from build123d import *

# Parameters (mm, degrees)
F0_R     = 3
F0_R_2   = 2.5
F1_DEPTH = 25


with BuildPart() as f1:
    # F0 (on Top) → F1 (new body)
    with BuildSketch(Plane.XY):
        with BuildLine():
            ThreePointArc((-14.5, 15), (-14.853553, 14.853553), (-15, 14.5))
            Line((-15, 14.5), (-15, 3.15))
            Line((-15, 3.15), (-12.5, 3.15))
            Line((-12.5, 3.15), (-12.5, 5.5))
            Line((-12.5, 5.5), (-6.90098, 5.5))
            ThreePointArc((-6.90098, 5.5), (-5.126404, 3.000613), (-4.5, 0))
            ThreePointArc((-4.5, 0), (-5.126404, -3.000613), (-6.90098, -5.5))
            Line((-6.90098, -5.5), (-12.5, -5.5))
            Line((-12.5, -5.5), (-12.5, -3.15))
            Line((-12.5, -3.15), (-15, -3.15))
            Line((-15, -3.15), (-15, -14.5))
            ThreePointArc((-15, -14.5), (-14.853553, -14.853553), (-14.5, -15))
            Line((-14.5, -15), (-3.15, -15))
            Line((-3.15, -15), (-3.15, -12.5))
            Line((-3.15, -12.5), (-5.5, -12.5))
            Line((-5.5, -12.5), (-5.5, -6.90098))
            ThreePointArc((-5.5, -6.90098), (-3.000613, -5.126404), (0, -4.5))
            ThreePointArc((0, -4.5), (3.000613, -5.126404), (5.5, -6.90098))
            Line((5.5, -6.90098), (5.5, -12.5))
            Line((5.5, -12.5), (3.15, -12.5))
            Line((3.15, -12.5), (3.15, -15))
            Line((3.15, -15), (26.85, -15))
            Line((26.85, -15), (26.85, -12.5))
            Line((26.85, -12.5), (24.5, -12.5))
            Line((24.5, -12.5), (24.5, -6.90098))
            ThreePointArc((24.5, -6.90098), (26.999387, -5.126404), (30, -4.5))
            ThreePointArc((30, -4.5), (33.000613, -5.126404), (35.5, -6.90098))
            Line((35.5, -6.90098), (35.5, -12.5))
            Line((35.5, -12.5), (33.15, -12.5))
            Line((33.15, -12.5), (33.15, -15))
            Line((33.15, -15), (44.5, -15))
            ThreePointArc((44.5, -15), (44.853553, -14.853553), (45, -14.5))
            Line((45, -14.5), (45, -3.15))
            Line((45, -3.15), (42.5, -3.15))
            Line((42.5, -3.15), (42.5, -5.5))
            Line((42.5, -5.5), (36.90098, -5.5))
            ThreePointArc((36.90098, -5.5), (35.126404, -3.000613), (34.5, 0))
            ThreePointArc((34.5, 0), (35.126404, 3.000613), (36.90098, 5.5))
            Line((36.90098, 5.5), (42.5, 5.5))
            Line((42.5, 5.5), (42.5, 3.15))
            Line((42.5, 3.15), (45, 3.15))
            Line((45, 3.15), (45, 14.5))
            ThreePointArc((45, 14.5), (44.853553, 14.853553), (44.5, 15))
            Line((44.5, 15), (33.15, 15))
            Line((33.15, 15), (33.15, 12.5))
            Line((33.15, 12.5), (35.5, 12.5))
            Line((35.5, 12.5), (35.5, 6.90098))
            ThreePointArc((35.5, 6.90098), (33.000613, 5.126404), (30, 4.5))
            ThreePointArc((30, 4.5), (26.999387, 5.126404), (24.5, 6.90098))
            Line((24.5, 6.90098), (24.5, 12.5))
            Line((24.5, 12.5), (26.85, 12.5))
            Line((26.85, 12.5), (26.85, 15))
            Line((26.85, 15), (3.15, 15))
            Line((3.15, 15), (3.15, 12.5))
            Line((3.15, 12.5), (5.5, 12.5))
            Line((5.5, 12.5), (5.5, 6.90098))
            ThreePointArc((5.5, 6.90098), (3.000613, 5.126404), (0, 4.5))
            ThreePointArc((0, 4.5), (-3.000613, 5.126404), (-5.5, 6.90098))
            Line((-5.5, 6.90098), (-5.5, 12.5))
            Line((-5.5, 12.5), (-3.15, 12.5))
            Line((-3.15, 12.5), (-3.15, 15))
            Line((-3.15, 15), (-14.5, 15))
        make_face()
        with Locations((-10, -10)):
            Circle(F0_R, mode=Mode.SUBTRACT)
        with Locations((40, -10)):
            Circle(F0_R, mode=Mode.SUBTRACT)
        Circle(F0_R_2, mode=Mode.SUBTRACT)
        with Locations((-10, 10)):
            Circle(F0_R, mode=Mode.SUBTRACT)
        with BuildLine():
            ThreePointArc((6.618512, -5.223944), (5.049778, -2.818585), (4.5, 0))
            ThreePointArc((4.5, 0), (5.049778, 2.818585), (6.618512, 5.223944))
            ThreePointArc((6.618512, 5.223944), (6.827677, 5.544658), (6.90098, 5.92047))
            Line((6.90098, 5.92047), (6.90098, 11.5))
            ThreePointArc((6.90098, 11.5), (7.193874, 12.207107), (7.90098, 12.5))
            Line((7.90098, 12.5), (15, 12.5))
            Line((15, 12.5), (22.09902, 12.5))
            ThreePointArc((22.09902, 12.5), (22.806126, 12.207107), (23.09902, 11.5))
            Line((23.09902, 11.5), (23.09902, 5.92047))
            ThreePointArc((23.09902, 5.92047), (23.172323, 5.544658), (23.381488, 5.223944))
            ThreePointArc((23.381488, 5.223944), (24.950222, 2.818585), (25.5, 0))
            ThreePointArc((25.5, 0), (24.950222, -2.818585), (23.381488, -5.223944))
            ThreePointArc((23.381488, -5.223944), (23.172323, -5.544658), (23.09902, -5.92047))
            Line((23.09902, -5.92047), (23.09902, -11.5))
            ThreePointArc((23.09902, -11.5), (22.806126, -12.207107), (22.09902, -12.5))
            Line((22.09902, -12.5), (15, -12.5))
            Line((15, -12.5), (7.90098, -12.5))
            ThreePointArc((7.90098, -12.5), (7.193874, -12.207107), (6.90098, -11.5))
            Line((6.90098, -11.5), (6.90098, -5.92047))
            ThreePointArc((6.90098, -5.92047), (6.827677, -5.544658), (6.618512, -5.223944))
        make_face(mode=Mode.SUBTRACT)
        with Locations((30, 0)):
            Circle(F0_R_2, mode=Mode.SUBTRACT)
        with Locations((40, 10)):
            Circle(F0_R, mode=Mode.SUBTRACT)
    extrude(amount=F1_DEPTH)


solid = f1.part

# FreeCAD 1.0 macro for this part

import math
import FreeCAD as App
import Part
import Sketcher

doc = App.newDocument("Part")
params = doc.addObject("Spreadsheet::Sheet", "Params")
for row, (alias, value) in enumerate([
    ("sketch1_diameter", "6 mm"),
    ("sketch1_diameter2", "5 mm"),
    ("sketch1_radius", "1.000001 mm"),
    ("sketch1_radius2", "0.500001 mm"),
    ("sketch1_radius3", "7.500002 mm"),
    ("pad1_length", "25 mm"),
], start=1):
    params.set(f"A{row}", alias)
    params.set(f"B{row}", "=" + value)
    params.setAlias(f"B{row}", alias)

body = doc.addObject("PartDesign::Body", "Body")

sketch1 = body.newObject("Sketcher::SketchObject", "Sketch")
sketch1.AttachmentSupport = (doc.getObject("XY_Plane"), [""])
sketch1.MapMode = "FlatFace"
sketch1.addGeometry([
    Part.ArcOfCircle(Part.Circle(App.Vector(-14.5, 14.5, 0), App.Vector(0, 0, 1), 0.5), math.radians(90), math.radians(180)),
    Part.LineSegment(App.Vector(-15, 14.5, 0), App.Vector(-15, 3.1, 0)),
    Part.LineSegment(App.Vector(-15, 3.1, 0), App.Vector(-12.5, 3.1, 0)),
    Part.LineSegment(App.Vector(-12.5, 3.1, 0), App.Vector(-12.5, 5.5, 0)),
    Part.LineSegment(App.Vector(-12.5, 5.5, 0), App.Vector(-6.9, 5.5, 0)),
    Part.ArcOfCircle(Part.Circle(App.Vector(-12, 0, 0), App.Vector(0, 0, 1), 7.5), math.radians(0), math.radians(47)),
    Part.ArcOfCircle(Part.Circle(App.Vector(-12, 0, 0), App.Vector(0, 0, 1), 7.5), math.radians(-47), math.radians(0)),
    Part.LineSegment(App.Vector(-6.9, -5.5, 0), App.Vector(-12.5, -5.5, 0)),
    Part.LineSegment(App.Vector(-12.5, -5.5, 0), App.Vector(-12.5, -3.1, 0)),
    Part.LineSegment(App.Vector(-12.5, -3.1, 0), App.Vector(-15, -3.1, 0)),
    Part.LineSegment(App.Vector(-15, -3.1, 0), App.Vector(-15, -14.5, 0)),
    Part.ArcOfCircle(Part.Circle(App.Vector(-14.5, -14.5, 0), App.Vector(0, 0, 1), 0.5), math.radians(-180), math.radians(-90)),
    Part.LineSegment(App.Vector(-14.5, -15, 0), App.Vector(-3.1, -15, 0)),
    Part.LineSegment(App.Vector(-3.1, -15, 0), App.Vector(-3.1, -12.5, 0)),
    Part.LineSegment(App.Vector(-3.1, -12.5, 0), App.Vector(-5.5, -12.5, 0)),
    Part.LineSegment(App.Vector(-5.5, -12.5, 0), App.Vector(-5.5, -6.9, 0)),
    Part.ArcOfCircle(Part.Circle(App.Vector(0, -12, 0), App.Vector(0, 0, 1), 7.5), math.radians(90), math.radians(137)),
    Part.ArcOfCircle(Part.Circle(App.Vector(0, -12, 0), App.Vector(0, 0, 1), 7.5), math.radians(43), math.radians(90)),
    Part.LineSegment(App.Vector(5.5, -6.9, 0), App.Vector(5.5, -12.5, 0)),
    Part.LineSegment(App.Vector(5.5, -12.5, 0), App.Vector(3.1, -12.5, 0)),
    Part.LineSegment(App.Vector(3.1, -12.5, 0), App.Vector(3.1, -15, 0)),
    Part.LineSegment(App.Vector(3.1, -15, 0), App.Vector(26.9, -15, 0)),
    Part.LineSegment(App.Vector(26.9, -15, 0), App.Vector(26.9, -12.5, 0)),
    Part.LineSegment(App.Vector(26.9, -12.5, 0), App.Vector(24.5, -12.5, 0)),
    Part.LineSegment(App.Vector(24.5, -12.5, 0), App.Vector(24.5, -6.9, 0)),
    Part.ArcOfCircle(Part.Circle(App.Vector(30, -12, 0), App.Vector(0, 0, 1), 7.5), math.radians(90), math.radians(137)),
    Part.ArcOfCircle(Part.Circle(App.Vector(30, -12, 0), App.Vector(0, 0, 1), 7.5), math.radians(43), math.radians(90)),
    Part.LineSegment(App.Vector(35.5, -6.9, 0), App.Vector(35.5, -12.5, 0)),
    Part.LineSegment(App.Vector(35.5, -12.5, 0), App.Vector(33.1, -12.5, 0)),
    Part.LineSegment(App.Vector(33.1, -12.5, 0), App.Vector(33.1, -15, 0)),
    Part.LineSegment(App.Vector(33.1, -15, 0), App.Vector(44.5, -15, 0)),
    Part.ArcOfCircle(Part.Circle(App.Vector(44.5, -14.5, 0), App.Vector(0, 0, 1), 0.5), math.radians(-90), math.radians(0)),
    Part.LineSegment(App.Vector(45, -14.5, 0), App.Vector(45, -3.1, 0)),
    Part.LineSegment(App.Vector(45, -3.1, 0), App.Vector(42.5, -3.1, 0)),
    Part.LineSegment(App.Vector(42.5, -3.1, 0), App.Vector(42.5, -5.5, 0)),
    Part.LineSegment(App.Vector(42.5, -5.5, 0), App.Vector(36.9, -5.5, 0)),
    Part.ArcOfCircle(Part.Circle(App.Vector(42, 0, 0), App.Vector(0, 0, 1), 7.5), math.radians(-180), math.radians(-133)),
    Part.ArcOfCircle(Part.Circle(App.Vector(42, 0, 0), App.Vector(0, 0, 1), 7.5), math.radians(133), math.radians(180)),
    Part.LineSegment(App.Vector(36.9, 5.5, 0), App.Vector(42.5, 5.5, 0)),
    Part.LineSegment(App.Vector(42.5, 5.5, 0), App.Vector(42.5, 3.1, 0)),
    Part.LineSegment(App.Vector(42.5, 3.1, 0), App.Vector(45, 3.1, 0)),
    Part.LineSegment(App.Vector(45, 3.1, 0), App.Vector(45, 14.5, 0)),
    Part.ArcOfCircle(Part.Circle(App.Vector(44.5, 14.5, 0), App.Vector(0, 0, 1), 0.5), math.radians(0), math.radians(90)),
    Part.LineSegment(App.Vector(44.5, 15, 0), App.Vector(33.1, 15, 0)),
    Part.LineSegment(App.Vector(33.1, 15, 0), App.Vector(33.1, 12.5, 0)),
    Part.LineSegment(App.Vector(33.1, 12.5, 0), App.Vector(35.5, 12.5, 0)),
    Part.LineSegment(App.Vector(35.5, 12.5, 0), App.Vector(35.5, 6.9, 0)),
    Part.ArcOfCircle(Part.Circle(App.Vector(30, 12, 0), App.Vector(0, 0, 1), 7.5), math.radians(-90), math.radians(-43)),
    Part.ArcOfCircle(Part.Circle(App.Vector(30, 12, 0), App.Vector(0, 0, 1), 7.5), math.radians(-137), math.radians(-90)),
    Part.LineSegment(App.Vector(24.5, 6.9, 0), App.Vector(24.5, 12.5, 0)),
    Part.LineSegment(App.Vector(24.5, 12.5, 0), App.Vector(26.9, 12.5, 0)),
    Part.LineSegment(App.Vector(26.9, 12.5, 0), App.Vector(26.9, 15, 0)),
    Part.LineSegment(App.Vector(26.9, 15, 0), App.Vector(3.1, 15, 0)),
    Part.LineSegment(App.Vector(3.1, 15, 0), App.Vector(3.1, 12.5, 0)),
    Part.LineSegment(App.Vector(3.1, 12.5, 0), App.Vector(5.5, 12.5, 0)),
    Part.LineSegment(App.Vector(5.5, 12.5, 0), App.Vector(5.5, 6.9, 0)),
    Part.ArcOfCircle(Part.Circle(App.Vector(0, 12, 0), App.Vector(0, 0, 1), 7.5), math.radians(-90), math.radians(-43)),
    Part.ArcOfCircle(Part.Circle(App.Vector(0, 12, 0), App.Vector(0, 0, 1), 7.5), math.radians(-137), math.radians(-90)),
    Part.LineSegment(App.Vector(-5.5, 6.9, 0), App.Vector(-5.5, 12.5, 0)),
    Part.LineSegment(App.Vector(-5.5, 12.5, 0), App.Vector(-3.1, 12.5, 0)),
    Part.LineSegment(App.Vector(-3.1, 12.5, 0), App.Vector(-3.1, 15, 0)),
    Part.LineSegment(App.Vector(-3.1, 15, 0), App.Vector(-14.5, 15, 0)),
    Part.Circle(App.Vector(-10, -10, 0), App.Vector(0, 0, 1), 3),
    Part.Circle(App.Vector(40, -10, 0), App.Vector(0, 0, 1), 3),
    Part.Circle(App.Vector(0, 0, 0), App.Vector(0, 0, 1), 2.5),
    Part.ArcOfCircle(Part.Circle(App.Vector(5.9, -5.9, 0), App.Vector(0, 0, 1), 1), math.radians(0), math.radians(44)),
    Part.ArcOfCircle(Part.Circle(App.Vector(12, 0, 0), App.Vector(0, 0, 1), 7.5), math.radians(180), math.radians(224)),
    Part.ArcOfCircle(Part.Circle(App.Vector(12, 0, 0), App.Vector(0, 0, 1), 7.5), math.radians(136), math.radians(180)),
    Part.ArcOfCircle(Part.Circle(App.Vector(5.9, 5.9, 0), App.Vector(0, 0, 1), 1), math.radians(-44), math.radians(0)),
    Part.LineSegment(App.Vector(6.9, 5.9, 0), App.Vector(6.9, 11.5, 0)),
    Part.ArcOfCircle(Part.Circle(App.Vector(7.9, 11.5, 0), App.Vector(0, 0, 1), 1), math.radians(90), math.radians(180)),
    Part.LineSegment(App.Vector(7.9, 12.5, 0), App.Vector(22.1, 12.5, 0)),
    Part.ArcOfCircle(Part.Circle(App.Vector(22.1, 11.5, 0), App.Vector(0, 0, 1), 1), math.radians(0), math.radians(90)),
    Part.LineSegment(App.Vector(23.1, 11.5, 0), App.Vector(23.1, 5.9, 0)),
    Part.ArcOfCircle(Part.Circle(App.Vector(24.1, 5.9, 0), App.Vector(0, 0, 1), 1), math.radians(180), math.radians(224)),
    Part.ArcOfCircle(Part.Circle(App.Vector(18, 0, 0), App.Vector(0, 0, 1), 7.5), math.radians(0), math.radians(44)),
    Part.ArcOfCircle(Part.Circle(App.Vector(18, 0, 0), App.Vector(0, 0, 1), 7.5), math.radians(-44), math.radians(0)),
    Part.ArcOfCircle(Part.Circle(App.Vector(24.1, -5.9, 0), App.Vector(0, 0, 1), 1), math.radians(136), math.radians(180)),
    Part.LineSegment(App.Vector(23.1, -5.9, 0), App.Vector(23.1, -11.5, 0)),
    Part.ArcOfCircle(Part.Circle(App.Vector(22.1, -11.5, 0), App.Vector(0, 0, 1), 1), math.radians(-90), math.radians(0)),
    Part.LineSegment(App.Vector(22.1, -12.5, 0), App.Vector(7.9, -12.5, 0)),
    Part.ArcOfCircle(Part.Circle(App.Vector(7.9, -11.5, 0), App.Vector(0, 0, 1), 1), math.radians(-180), math.radians(-90)),
    Part.LineSegment(App.Vector(6.9, -11.5, 0), App.Vector(6.9, -5.9, 0)),
    Part.Circle(App.Vector(-10, 10, 0), App.Vector(0, 0, 1), 3),
    Part.Circle(App.Vector(30, 0, 0), App.Vector(0, 0, 1), 2.5),
    Part.Circle(App.Vector(40, 10, 0), App.Vector(0, 0, 1), 3),
], False)
sketch1.addConstraint([
    Sketcher.Constraint("Coincident", 0, 2, 1, 1),
    Sketcher.Constraint("Coincident", 1, 2, 2, 1),
    Sketcher.Constraint("Coincident", 2, 2, 3, 1),
    Sketcher.Constraint("Coincident", 3, 2, 4, 1),
    Sketcher.Constraint("Coincident", 4, 2, 5, 2),
    Sketcher.Constraint("Tangent", 5, 1, 6, 2),
    Sketcher.Constraint("Coincident", 6, 1, 7, 1),
    Sketcher.Constraint("Coincident", 7, 2, 8, 1),
    Sketcher.Constraint("Coincident", 8, 2, 9, 1),
    Sketcher.Constraint("Coincident", 9, 2, 10, 1),
    Sketcher.Constraint("Coincident", 10, 2, 11, 1),
    Sketcher.Constraint("Coincident", 11, 2, 12, 1),
    Sketcher.Constraint("Coincident", 12, 2, 13, 1),
    Sketcher.Constraint("Coincident", 13, 2, 14, 1),
    Sketcher.Constraint("Coincident", 14, 2, 15, 1),
    Sketcher.Constraint("Coincident", 15, 2, 16, 2),
    Sketcher.Constraint("Tangent", 16, 1, 17, 2),
    Sketcher.Constraint("Coincident", 17, 1, 18, 1),
    Sketcher.Constraint("Coincident", 18, 2, 19, 1),
    Sketcher.Constraint("Coincident", 19, 2, 20, 1),
    Sketcher.Constraint("Coincident", 20, 2, 21, 1),
    Sketcher.Constraint("Coincident", 21, 2, 22, 1),
    Sketcher.Constraint("Coincident", 22, 2, 23, 1),
    Sketcher.Constraint("Coincident", 23, 2, 24, 1),
    Sketcher.Constraint("Coincident", 24, 2, 25, 2),
    Sketcher.Constraint("Tangent", 25, 1, 26, 2),
    Sketcher.Constraint("Coincident", 26, 1, 27, 1),
    Sketcher.Constraint("Coincident", 27, 2, 28, 1),
    Sketcher.Constraint("Coincident", 28, 2, 29, 1),
    Sketcher.Constraint("Coincident", 29, 2, 30, 1),
    Sketcher.Constraint("Coincident", 30, 2, 31, 1),
    Sketcher.Constraint("Coincident", 31, 2, 32, 1),
    Sketcher.Constraint("Coincident", 32, 2, 33, 1),
    Sketcher.Constraint("Coincident", 33, 2, 34, 1),
    Sketcher.Constraint("Coincident", 34, 2, 35, 1),
    Sketcher.Constraint("Coincident", 35, 2, 36, 2),
    Sketcher.Constraint("Tangent", 36, 1, 37, 2),
    Sketcher.Constraint("Coincident", 37, 1, 38, 1),
    Sketcher.Constraint("Coincident", 38, 2, 39, 1),
    Sketcher.Constraint("Coincident", 39, 2, 40, 1),
    Sketcher.Constraint("Coincident", 40, 2, 41, 1),
    Sketcher.Constraint("Coincident", 41, 2, 42, 1),
    Sketcher.Constraint("Coincident", 42, 2, 43, 1),
    Sketcher.Constraint("Coincident", 43, 2, 44, 1),
    Sketcher.Constraint("Coincident", 44, 2, 45, 1),
    Sketcher.Constraint("Coincident", 45, 2, 46, 1),
    Sketcher.Constraint("Coincident", 46, 2, 47, 2),
    Sketcher.Constraint("Tangent", 47, 1, 48, 2),
    Sketcher.Constraint("Coincident", 48, 1, 49, 1),
    Sketcher.Constraint("Coincident", 49, 2, 50, 1),
    Sketcher.Constraint("Coincident", 50, 2, 51, 1),
    Sketcher.Constraint("Coincident", 51, 2, 52, 1),
    Sketcher.Constraint("Coincident", 52, 2, 53, 1),
    Sketcher.Constraint("Coincident", 53, 2, 54, 1),
    Sketcher.Constraint("Coincident", 54, 2, 55, 1),
    Sketcher.Constraint("Coincident", 55, 2, 56, 2),
    Sketcher.Constraint("Tangent", 56, 1, 57, 2),
    Sketcher.Constraint("Coincident", 57, 1, 58, 1),
    Sketcher.Constraint("Coincident", 58, 2, 59, 1),
    Sketcher.Constraint("Coincident", 59, 2, 60, 1),
    Sketcher.Constraint("Coincident", 60, 2, 61, 1),
    Sketcher.Constraint("Coincident", 61, 2, 0, 1),
    Sketcher.Constraint("Coincident", 65, 2, 66, 2),
    Sketcher.Constraint("Tangent", 66, 1, 67, 2),
    Sketcher.Constraint("Coincident", 67, 1, 68, 1),
    Sketcher.Constraint("Coincident", 68, 2, 69, 1),
    Sketcher.Constraint("Tangent", 69, 2, 70, 2),
    Sketcher.Constraint("Tangent", 70, 1, 71, 1),
    Sketcher.Constraint("Tangent", 71, 2, 72, 2),
    Sketcher.Constraint("Tangent", 72, 1, 73, 1),
    Sketcher.Constraint("Coincident", 73, 2, 74, 1),
    Sketcher.Constraint("Coincident", 74, 2, 75, 2),
    Sketcher.Constraint("Tangent", 75, 1, 76, 2),
    Sketcher.Constraint("Coincident", 76, 1, 77, 1),
    Sketcher.Constraint("Coincident", 77, 2, 78, 1),
    Sketcher.Constraint("Tangent", 78, 2, 79, 2),
    Sketcher.Constraint("Tangent", 79, 1, 80, 1),
    Sketcher.Constraint("Tangent", 80, 2, 81, 2),
    Sketcher.Constraint("Tangent", 81, 1, 82, 1),
    Sketcher.Constraint("Coincident", 82, 2, 65, 1),
    Sketcher.Constraint("Vertical", 1),
    Sketcher.Constraint("Horizontal", 2),
    Sketcher.Constraint("Vertical", 3),
    Sketcher.Constraint("Horizontal", 4),
    Sketcher.Constraint("Horizontal", 7),
    Sketcher.Constraint("Vertical", 8),
    Sketcher.Constraint("Horizontal", 9),
    Sketcher.Constraint("Vertical", 10),
    Sketcher.Constraint("Horizontal", 12),
    Sketcher.Constraint("Vertical", 13),
    Sketcher.Constraint("Horizontal", 14),
    Sketcher.Constraint("Vertical", 15),
    Sketcher.Constraint("Vertical", 18),
    Sketcher.Constraint("Horizontal", 19),
    Sketcher.Constraint("Vertical", 20),
    Sketcher.Constraint("Horizontal", 21),
    Sketcher.Constraint("Vertical", 22),
    Sketcher.Constraint("Horizontal", 23),
    Sketcher.Constraint("Vertical", 24),
    Sketcher.Constraint("Vertical", 27),
    Sketcher.Constraint("Horizontal", 28),
    Sketcher.Constraint("Vertical", 29),
    Sketcher.Constraint("Horizontal", 30),
    Sketcher.Constraint("Vertical", 32),
    Sketcher.Constraint("Horizontal", 33),
    Sketcher.Constraint("Vertical", 34),
    Sketcher.Constraint("Horizontal", 35),
    Sketcher.Constraint("Horizontal", 38),
    Sketcher.Constraint("Vertical", 39),
    Sketcher.Constraint("Horizontal", 40),
    Sketcher.Constraint("Vertical", 41),
    Sketcher.Constraint("Horizontal", 43),
    Sketcher.Constraint("Vertical", 44),
    Sketcher.Constraint("Horizontal", 45),
    Sketcher.Constraint("Vertical", 46),
    Sketcher.Constraint("Vertical", 49),
    Sketcher.Constraint("Horizontal", 50),
    Sketcher.Constraint("Vertical", 51),
    Sketcher.Constraint("Horizontal", 52),
    Sketcher.Constraint("Vertical", 53),
    Sketcher.Constraint("Horizontal", 54),
    Sketcher.Constraint("Vertical", 55),
    Sketcher.Constraint("Vertical", 58),
    Sketcher.Constraint("Horizontal", 59),
    Sketcher.Constraint("Vertical", 60),
    Sketcher.Constraint("Horizontal", 61),
    Sketcher.Constraint("Vertical", 69),
    Sketcher.Constraint("Horizontal", 71),
    Sketcher.Constraint("Vertical", 73),
    Sketcher.Constraint("Vertical", 78),
    Sketcher.Constraint("Horizontal", 80),
    Sketcher.Constraint("Vertical", 82),
    Sketcher.Constraint("Coincident", 64, 3, -1, 1),
    Sketcher.Constraint("Equal", 5, 6),
    Sketcher.Constraint("Equal", 0, 11),
    Sketcher.Constraint("Equal", 6, 16),
    Sketcher.Constraint("Equal", 16, 17),
    Sketcher.Constraint("Equal", 17, 25),
    Sketcher.Constraint("Equal", 25, 26),
    Sketcher.Constraint("Equal", 11, 31),
    Sketcher.Constraint("Equal", 26, 36),
    Sketcher.Constraint("Equal", 36, 37),
    Sketcher.Constraint("Equal", 31, 42),
    Sketcher.Constraint("Equal", 37, 47),
    Sketcher.Constraint("Equal", 47, 48),
    Sketcher.Constraint("Equal", 48, 56),
    Sketcher.Constraint("Equal", 56, 57),
    Sketcher.Constraint("Equal", 62, 63),
    Sketcher.Constraint("Equal", 66, 67),
    Sketcher.Constraint("Equal", 65, 68),
    Sketcher.Constraint("Equal", 70, 72),
    Sketcher.Constraint("Equal", 68, 74),
    Sketcher.Constraint("Equal", 67, 75),
    Sketcher.Constraint("Equal", 75, 76),
    Sketcher.Constraint("Equal", 74, 77),
    Sketcher.Constraint("Equal", 72, 79),
    Sketcher.Constraint("Equal", 79, 81),
    Sketcher.Constraint("Equal", 63, 83),
    Sketcher.Constraint("Equal", 64, 84),
    Sketcher.Constraint("Equal", 83, 85),
    Sketcher.Constraint("Symmetric", 16, 3, 56, 3, -1, 1),
    Sketcher.Constraint("Symmetric", 5, 3, 66, 3, -1, 1),
    Sketcher.Constraint("Symmetric", 12, 2, 52, 2, -1, 1),
    Sketcher.Constraint("Symmetric", 14, 2, 54, 2, -1, 1),
    Sketcher.Constraint("Symmetric", 18, 2, 58, 2, -1, 1),
    Sketcher.Constraint("Symmetric", 20, 2, 60, 2, -1, 1),
    Sketcher.Constraint("Symmetric", 5, 1, 66, 1, -1, 1),
    Sketcher.Constraint("Symmetric", 15, 2, 17, 1, -2),
    Sketcher.Constraint("Symmetric", 13, 2, 19, 2, -2),
    Sketcher.Constraint("Symmetric", 0, 3, 11, 3, -1),
    Sketcher.Constraint("Symmetric", 31, 3, 42, 3, -1),
    Sketcher.Constraint("Symmetric", 25, 3, 47, 3, -1),
    Sketcher.Constraint("Symmetric", 65, 3, 68, 3, -1),
    Sketcher.Constraint("Symmetric", 74, 3, 77, 3, -1),
    Sketcher.Constraint("Symmetric", 62, 3, 83, 3, -1),
    Sketcher.Constraint("Symmetric", 63, 3, 85, 3, -1),
    Sketcher.Constraint("Symmetric", 3, 2, 7, 2, -1),
    Sketcher.Constraint("Symmetric", 35, 2, 37, 1, -1),
    Sketcher.Constraint("Symmetric", 33, 2, 39, 2, -1),
    Sketcher.Constraint("Symmetric", 28, 2, 44, 2, -1),
    Sketcher.Constraint("Symmetric", 23, 2, 49, 2, -1),
    Sketcher.Constraint("PointOnObject", 84, 3, -1),
    Sketcher.Constraint("PointOnObject", 5, 1, -1),
    Sketcher.Constraint("PointOnObject", 16, 1, -2),
    Sketcher.Constraint("PointOnObject", 36, 1, -1),
    Sketcher.Constraint("PointOnObject", 56, 1, -2),
    Sketcher.Constraint("PointOnObject", 75, 1, -1),
    Sketcher.Constraint("Horizontal", 17, 3, 25, 3),
    Sketcher.Constraint("Horizontal", 11, 3, 31, 3),
    Sketcher.Constraint("Horizontal", 62, 3, 63, 3),
    Sketcher.Constraint("Horizontal", 68, 3, 74, 3),
    Sketcher.Constraint("Horizontal", 42, 3, 0, 2),
    Sketcher.Constraint("Horizontal", 31, 3, 10, 2),
    Sketcher.Constraint("Horizontal", 19, 2, 22, 2),
    Sketcher.Constraint("Horizontal", 17, 1, 24, 2),
    Sketcher.Constraint("Horizontal", 24, 2, 26, 1),
    Sketcher.Constraint("Horizontal", 23, 2, 27, 2),
    Sketcher.Constraint("Horizontal", 10, 2, 31, 2),
    Sketcher.Constraint("Horizontal", 9, 2, 32, 2),
    Sketcher.Constraint("Horizontal", 7, 2, 34, 2),
    Sketcher.Constraint("Horizontal", 2, 2, 39, 2),
    Sketcher.Constraint("Horizontal", 0, 2, 41, 2),
    Sketcher.Constraint("Horizontal", 46, 2, 48, 1),
    Sketcher.Constraint("Horizontal", 59, 2, 70, 1),
    Sketcher.Constraint("Horizontal", 68, 2, 73, 2),
    Sketcher.Constraint("Horizontal", 67, 1, 74, 2),
    Sketcher.Constraint("Horizontal", 65, 2, 76, 1),
    Sketcher.Constraint("Horizontal", 28, 2, 79, 1),
    Sketcher.Constraint("Horizontal", 77, 2, 82, 2),
    Sketcher.Constraint("Vertical", 48, 3, 84, 3),
    Sketcher.Constraint("Vertical", 0, 3, 11, 2),
    Sketcher.Constraint("Vertical", 84, 3, 25, 1),
    Sketcher.Constraint("Vertical", 42, 3, 30, 2),
    Sketcher.Constraint("Vertical", 30, 2, 42, 2),
    Sketcher.Constraint("Vertical", 25, 1, 47, 1),
    Sketcher.Constraint("Vertical", 22, 2, 50, 2),
    Sketcher.Constraint("Vertical", 11, 2, 61, 2),
    Sketcher.Constraint("Vertical", 65, 2, 67, 1),
    Sketcher.Constraint("Equal", 19, 23),
    Sketcher.Constraint("Equal", 23, 28),
    Sketcher.Constraint("Equal", 12, 30),
    Sketcher.Constraint("Equal", 9, 33),
    Sketcher.Constraint("Equal", 7, 35),
    Sketcher.Constraint("Equal", 61, 1),
    Sketcher.Constraint("Equal", 59, 3),
    Sketcher.Constraint("Equal", 40, 13),
    Sketcher.Constraint("Equal", 38, 15),
    Sketcher.Constraint("Equal", 73, 78),
    Sketcher.Constraint("Diameter", 62, 6.0),
    Sketcher.Constraint("Diameter", 64, 5.0),
    Sketcher.Constraint("Radius", 70, 1.000001),
    Sketcher.Constraint("Radius", 0, 0.500001),
    Sketcher.Constraint("Radius", 5, 7.500002),
    Sketcher.Constraint("DistanceX", 2, 1, 2, 2, 2.5),
    Sketcher.Constraint("DistanceX", 21, 1, 21, 2, 23.7),
    Sketcher.Constraint("DistanceX", 5, 3, -1, 1, 12.000002),
    Sketcher.Constraint("DistanceY", 16, 3, -1, 1, 12.000002),
    Sketcher.Constraint("DistanceX", -1, 1, 25, 3, 30.0),
    Sketcher.Constraint("DistanceX", 62, 3, -1, 1, 10.0),
    Sketcher.Constraint("DistanceY", 62, 3, -1, 1, 10.0),
    Sketcher.Constraint("DistanceX", -1, 1, 63, 3, 40.0),
    Sketcher.Constraint("DistanceX", 0, 2, -1, 1, 15.0),
    Sketcher.Constraint("DistanceX", 14, 2, 14, 1, 2.35),
    Sketcher.Constraint("DistanceX", -1, 1, 75, 1, 25.5),
    Sketcher.Constraint("Radius", 65, 0.99999),
    Sketcher.Constraint("DistanceX", 71, 1, 71, 2, 14.19804),
    Sketcher.Constraint("DistanceY", 69, 1, 69, 2, 5.57953),
    Sketcher.Constraint("DistanceX", -1, 1, 67, 1, 6.618512),
])
sketch1.setExpression("Constraints[228]", "Params.sketch1_diameter")
sketch1.setExpression("Constraints[229]", "Params.sketch1_diameter2")
sketch1.setExpression("Constraints[230]", "Params.sketch1_radius")
sketch1.setExpression("Constraints[231]", "Params.sketch1_radius2")
sketch1.setExpression("Constraints[232]", "Params.sketch1_radius3")
pad1 = body.newObject("PartDesign::Pad", "Pad")
pad1.Profile = sketch1
pad1.setExpression("Length", "Params.pad1_length")

doc.recompute()
